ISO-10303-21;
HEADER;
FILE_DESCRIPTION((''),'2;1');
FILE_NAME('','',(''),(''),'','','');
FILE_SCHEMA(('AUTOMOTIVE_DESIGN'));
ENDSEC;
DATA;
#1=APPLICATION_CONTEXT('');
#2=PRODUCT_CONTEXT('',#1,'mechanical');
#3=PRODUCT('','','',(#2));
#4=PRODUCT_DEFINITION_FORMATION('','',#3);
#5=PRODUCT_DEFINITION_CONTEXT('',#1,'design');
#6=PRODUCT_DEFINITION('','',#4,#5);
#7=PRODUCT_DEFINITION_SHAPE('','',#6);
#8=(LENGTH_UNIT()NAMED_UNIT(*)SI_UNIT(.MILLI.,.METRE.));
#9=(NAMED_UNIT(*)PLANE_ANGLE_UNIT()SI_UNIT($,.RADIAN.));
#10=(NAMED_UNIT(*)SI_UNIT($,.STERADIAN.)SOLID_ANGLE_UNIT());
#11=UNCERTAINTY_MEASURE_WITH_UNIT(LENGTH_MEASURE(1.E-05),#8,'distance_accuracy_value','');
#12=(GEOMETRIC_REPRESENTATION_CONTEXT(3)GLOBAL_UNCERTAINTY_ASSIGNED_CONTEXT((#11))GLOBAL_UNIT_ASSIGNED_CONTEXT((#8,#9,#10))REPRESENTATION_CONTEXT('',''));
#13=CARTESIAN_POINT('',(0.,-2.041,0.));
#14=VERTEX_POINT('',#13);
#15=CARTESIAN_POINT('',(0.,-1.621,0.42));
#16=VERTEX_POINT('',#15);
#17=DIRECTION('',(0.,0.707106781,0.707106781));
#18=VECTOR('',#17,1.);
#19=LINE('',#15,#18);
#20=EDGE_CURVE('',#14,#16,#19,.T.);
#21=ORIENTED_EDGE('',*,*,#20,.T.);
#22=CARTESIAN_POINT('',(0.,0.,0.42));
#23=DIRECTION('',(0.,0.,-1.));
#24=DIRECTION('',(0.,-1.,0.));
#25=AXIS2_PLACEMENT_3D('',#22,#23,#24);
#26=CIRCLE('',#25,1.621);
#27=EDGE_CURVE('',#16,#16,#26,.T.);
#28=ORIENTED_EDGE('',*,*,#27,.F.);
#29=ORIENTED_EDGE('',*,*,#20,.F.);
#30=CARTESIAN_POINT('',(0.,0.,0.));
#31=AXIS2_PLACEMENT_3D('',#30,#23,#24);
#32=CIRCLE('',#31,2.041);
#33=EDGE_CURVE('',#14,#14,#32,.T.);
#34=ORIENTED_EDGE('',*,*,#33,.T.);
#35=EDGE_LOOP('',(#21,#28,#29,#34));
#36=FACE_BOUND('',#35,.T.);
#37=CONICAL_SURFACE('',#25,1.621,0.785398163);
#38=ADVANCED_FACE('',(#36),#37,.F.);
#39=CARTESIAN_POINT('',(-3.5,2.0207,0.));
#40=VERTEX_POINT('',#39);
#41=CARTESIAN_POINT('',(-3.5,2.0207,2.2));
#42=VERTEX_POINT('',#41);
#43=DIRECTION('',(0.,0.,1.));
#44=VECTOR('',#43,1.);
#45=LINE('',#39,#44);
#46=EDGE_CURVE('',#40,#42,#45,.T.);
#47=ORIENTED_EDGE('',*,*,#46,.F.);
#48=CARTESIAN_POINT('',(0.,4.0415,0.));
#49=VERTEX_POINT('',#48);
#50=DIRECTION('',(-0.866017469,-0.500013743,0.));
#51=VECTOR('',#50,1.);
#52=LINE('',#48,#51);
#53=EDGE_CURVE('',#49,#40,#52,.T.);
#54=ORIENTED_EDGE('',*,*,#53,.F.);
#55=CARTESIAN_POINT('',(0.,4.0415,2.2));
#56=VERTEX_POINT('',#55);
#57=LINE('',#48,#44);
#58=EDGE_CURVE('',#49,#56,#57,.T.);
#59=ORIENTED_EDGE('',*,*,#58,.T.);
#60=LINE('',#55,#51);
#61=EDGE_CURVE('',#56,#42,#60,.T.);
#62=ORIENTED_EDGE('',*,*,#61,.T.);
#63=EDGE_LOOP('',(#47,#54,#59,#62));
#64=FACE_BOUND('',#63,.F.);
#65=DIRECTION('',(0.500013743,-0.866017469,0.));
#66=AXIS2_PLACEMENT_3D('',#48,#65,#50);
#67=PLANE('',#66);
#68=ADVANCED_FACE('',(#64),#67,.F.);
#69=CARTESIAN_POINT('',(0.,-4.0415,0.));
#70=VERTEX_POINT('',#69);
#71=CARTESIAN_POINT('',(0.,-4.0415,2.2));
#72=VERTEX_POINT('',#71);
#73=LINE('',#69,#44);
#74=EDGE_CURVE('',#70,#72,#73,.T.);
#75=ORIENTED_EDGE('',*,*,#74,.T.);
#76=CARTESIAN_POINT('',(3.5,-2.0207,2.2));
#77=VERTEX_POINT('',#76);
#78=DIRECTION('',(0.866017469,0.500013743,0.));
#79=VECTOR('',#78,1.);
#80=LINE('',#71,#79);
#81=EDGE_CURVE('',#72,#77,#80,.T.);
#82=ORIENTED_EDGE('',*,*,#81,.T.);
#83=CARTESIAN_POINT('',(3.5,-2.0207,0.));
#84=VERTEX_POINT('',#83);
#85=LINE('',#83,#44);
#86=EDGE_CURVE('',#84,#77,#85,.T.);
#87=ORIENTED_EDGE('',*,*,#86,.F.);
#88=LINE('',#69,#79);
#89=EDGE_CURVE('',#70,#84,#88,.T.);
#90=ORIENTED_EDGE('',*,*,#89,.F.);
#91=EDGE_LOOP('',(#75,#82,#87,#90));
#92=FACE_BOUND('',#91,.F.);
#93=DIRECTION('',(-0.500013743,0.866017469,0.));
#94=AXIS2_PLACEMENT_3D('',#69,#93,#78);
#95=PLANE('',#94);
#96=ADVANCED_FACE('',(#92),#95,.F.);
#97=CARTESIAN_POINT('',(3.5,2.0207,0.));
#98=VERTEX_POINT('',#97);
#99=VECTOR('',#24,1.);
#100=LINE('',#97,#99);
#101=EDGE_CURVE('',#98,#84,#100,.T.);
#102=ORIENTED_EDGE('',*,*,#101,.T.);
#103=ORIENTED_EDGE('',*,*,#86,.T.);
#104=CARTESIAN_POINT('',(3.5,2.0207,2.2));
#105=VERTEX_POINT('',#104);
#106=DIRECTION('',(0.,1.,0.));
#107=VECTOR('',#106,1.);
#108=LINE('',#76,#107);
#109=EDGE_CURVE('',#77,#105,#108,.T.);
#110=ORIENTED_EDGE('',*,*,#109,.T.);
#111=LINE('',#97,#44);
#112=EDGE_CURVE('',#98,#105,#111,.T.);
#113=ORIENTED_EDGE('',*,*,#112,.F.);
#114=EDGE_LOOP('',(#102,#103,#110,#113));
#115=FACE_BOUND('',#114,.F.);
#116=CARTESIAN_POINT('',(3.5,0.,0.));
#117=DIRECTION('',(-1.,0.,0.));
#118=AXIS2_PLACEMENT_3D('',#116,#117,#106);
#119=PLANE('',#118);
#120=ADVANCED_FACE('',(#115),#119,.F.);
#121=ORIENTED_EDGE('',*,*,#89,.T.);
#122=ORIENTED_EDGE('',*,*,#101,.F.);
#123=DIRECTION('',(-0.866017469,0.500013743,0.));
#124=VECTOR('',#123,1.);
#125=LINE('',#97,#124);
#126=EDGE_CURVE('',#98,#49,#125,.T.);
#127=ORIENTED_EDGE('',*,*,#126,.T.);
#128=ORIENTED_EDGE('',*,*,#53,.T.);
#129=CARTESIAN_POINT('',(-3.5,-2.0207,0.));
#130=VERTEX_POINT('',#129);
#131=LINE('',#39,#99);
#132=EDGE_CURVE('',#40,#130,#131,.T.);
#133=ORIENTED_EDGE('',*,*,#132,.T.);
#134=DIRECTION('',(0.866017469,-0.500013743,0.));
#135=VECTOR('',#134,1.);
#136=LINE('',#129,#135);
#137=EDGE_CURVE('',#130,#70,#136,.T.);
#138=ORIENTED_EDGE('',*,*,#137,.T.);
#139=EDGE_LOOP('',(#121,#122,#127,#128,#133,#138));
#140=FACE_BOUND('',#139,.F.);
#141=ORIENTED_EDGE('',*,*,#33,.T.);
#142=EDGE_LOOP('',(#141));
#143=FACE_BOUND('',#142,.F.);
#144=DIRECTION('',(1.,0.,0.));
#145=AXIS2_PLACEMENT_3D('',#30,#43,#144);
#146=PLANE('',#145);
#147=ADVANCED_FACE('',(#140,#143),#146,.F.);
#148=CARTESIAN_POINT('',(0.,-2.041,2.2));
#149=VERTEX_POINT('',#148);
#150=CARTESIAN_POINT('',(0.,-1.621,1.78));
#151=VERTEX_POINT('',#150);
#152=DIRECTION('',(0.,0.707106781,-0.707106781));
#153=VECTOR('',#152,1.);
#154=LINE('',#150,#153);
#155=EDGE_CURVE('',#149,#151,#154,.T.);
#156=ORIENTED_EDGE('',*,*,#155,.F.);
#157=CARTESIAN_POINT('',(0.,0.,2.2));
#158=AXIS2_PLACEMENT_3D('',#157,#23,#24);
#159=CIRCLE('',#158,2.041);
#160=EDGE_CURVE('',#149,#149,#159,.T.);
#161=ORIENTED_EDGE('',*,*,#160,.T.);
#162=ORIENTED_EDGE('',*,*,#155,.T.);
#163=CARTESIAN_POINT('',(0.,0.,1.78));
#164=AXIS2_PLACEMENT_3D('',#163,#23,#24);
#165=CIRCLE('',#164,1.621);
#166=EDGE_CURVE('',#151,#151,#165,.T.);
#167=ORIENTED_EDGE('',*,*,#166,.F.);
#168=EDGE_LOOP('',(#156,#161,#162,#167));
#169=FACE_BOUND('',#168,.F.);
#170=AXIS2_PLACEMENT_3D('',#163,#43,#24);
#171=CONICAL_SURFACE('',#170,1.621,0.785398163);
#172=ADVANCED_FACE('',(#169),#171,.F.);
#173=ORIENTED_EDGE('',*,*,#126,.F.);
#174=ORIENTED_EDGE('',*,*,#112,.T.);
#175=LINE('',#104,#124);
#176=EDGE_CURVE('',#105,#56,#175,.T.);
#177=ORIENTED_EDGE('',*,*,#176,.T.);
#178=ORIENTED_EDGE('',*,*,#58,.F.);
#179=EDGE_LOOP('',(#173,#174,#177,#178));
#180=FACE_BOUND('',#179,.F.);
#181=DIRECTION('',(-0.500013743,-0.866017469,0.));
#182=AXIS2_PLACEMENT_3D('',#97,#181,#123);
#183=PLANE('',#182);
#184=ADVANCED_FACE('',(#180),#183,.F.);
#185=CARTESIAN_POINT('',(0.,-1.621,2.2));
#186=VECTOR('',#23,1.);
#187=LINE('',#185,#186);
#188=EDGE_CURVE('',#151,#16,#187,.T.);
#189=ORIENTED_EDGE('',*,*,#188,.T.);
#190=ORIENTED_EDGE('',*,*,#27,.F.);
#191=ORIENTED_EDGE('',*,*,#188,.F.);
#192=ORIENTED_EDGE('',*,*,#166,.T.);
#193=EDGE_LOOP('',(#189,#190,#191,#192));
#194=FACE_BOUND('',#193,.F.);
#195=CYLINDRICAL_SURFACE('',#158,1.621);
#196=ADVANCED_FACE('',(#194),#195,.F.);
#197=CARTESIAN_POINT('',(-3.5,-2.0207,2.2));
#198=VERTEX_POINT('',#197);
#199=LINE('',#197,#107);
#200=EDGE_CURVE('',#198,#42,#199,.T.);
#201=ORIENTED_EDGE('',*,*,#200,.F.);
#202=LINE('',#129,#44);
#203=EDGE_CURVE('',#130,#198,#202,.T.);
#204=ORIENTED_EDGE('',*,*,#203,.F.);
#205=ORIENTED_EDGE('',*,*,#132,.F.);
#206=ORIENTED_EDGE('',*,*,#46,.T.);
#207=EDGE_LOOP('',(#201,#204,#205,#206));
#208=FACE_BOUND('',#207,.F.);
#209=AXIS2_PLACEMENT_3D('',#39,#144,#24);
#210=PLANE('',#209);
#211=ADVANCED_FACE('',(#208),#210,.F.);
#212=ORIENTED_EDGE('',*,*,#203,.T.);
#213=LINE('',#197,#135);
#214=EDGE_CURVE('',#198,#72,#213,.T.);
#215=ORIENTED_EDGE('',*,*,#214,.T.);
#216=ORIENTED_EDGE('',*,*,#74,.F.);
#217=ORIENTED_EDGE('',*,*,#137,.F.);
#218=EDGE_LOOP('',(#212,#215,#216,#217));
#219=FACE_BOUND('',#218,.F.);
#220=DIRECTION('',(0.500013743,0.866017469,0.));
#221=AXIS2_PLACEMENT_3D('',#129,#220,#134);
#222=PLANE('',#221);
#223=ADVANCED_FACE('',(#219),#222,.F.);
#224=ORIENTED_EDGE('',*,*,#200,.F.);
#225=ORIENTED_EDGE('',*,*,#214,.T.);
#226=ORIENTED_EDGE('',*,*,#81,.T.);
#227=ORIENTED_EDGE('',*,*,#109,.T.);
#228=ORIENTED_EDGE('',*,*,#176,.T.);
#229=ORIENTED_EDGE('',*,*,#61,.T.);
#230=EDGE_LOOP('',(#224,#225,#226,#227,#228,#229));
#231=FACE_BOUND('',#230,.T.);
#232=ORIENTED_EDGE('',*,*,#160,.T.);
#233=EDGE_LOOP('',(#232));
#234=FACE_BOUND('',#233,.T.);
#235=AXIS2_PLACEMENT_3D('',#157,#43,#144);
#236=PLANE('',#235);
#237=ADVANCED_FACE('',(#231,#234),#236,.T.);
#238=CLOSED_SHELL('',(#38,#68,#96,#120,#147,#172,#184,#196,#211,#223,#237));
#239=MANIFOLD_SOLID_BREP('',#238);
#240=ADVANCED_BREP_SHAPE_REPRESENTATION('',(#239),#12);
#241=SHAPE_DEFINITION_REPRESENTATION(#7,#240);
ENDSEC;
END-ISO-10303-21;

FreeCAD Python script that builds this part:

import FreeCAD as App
import Part
import Sketcher
Q = App.Units.Quantity


def edges_at(feature, points):
    """Names of the edges that pass closest to the given points."""
    edges = feature.Shape.Edges
    near = lambda p: min(range(len(edges)), key=lambda i: edges[i].distToShape(Part.Vertex(*p))[0])
    return sorted({f"Edge{near(p) + 1}" for p in points})


def add_polygon(sketch, points):
    """Adds a closed chain of lines whose ends are joined by coincident constraints."""
    first, n = sketch.GeometryCount, len(points)
    for a, b in zip(points, points[1:] + points[:1]):
        sketch.addGeometry(Part.LineSegment(App.Vector(*a, 0), App.Vector(*b, 0)), False)
    for i in range(n):
        sketch.addConstraint(Sketcher.Constraint("Coincident", first + i, 2, first + (i + 1) % n, 1))

doc = App.newDocument("Part")
body = doc.addObject("PartDesign::Body", "Body")

# Sketch on XY plane
sketch1 = doc.addObject("Sketcher::SketchObject", "Sketch")
body.addObject(sketch1)
sketch1.AttachmentSupport = (doc.XY_Plane, [""])
sketch1.MapMode = "FlatFace"
add_polygon(sketch1, [(0, 4), (-3.5, 2), (-3.5, -2), (0, -4), (3.5, -2), (3.5, 2)])  # lines 0-5
sketch1.addConstraint([
    Sketcher.Constraint("Vertical", 1),
    Sketcher.Constraint("Vertical", 4),
    Sketcher.Constraint("Symmetric", 0, 2, 3, 2, -1, 1),
    Sketcher.Constraint("Symmetric", 2, 2, 5, 2, -1, 1),
    Sketcher.Constraint("PointOnObject", 2, 2, -2),
    Sketcher.Constraint("Parallel", 2, 5),
    Sketcher.Constraint("Horizontal", 1, 2, 3, 2),
    Sketcher.Constraint("DistanceX", 1, 2, 3, 2, 7.0),
    Sketcher.Constraint("Angle", 0, Q("-149.999 deg")),
    Sketcher.Constraint("DistanceY", 1, 2, 1, 1, 4.0414),
])
pad1 = doc.addObject("PartDesign::Pad", "Pad")
body.addObject(pad1)
pad1.Profile = sketch1
pad1.Length = 2.2

# Sketch on XY plane
sketch2 = doc.addObject("Sketcher::SketchObject", "Sketch001")
body.addObject(sketch2)
sketch2.AttachmentSupport = (doc.XY_Plane, [""])
sketch2.MapMode = "FlatFace"
sketch2.AttachmentOffset = App.Placement(App.Vector(0, 0, 2.2), App.Rotation())
sketch2.addGeometry(Part.Circle(App.Vector(0, 0, 0), App.Vector(0, 0, 1), 1.6), False)
sketch2.addConstraint([
    Sketcher.Constraint("Coincident", 0, 3, -1, 1),
    Sketcher.Constraint("Diameter", 0, 3.242),
])
doc.recompute()
hole = doc.addObject("PartDesign::Hole", "Hole")
body.addObject(hole)
hole.Profile = sketch2
hole.ThreadType = "None"
hole.Diameter = 3.242
hole.DepthType = "ThroughAll"
doc.recompute()

chamfer = doc.addObject("PartDesign::Chamfer", "Chamfer")
body.addObject(chamfer)
chamfer.Base = (hole, edges_at(hole, [(0, 1.621, 2.2), (0, 1.621, 0)]))
chamfer.Size = 0.42

doc.recompute()
